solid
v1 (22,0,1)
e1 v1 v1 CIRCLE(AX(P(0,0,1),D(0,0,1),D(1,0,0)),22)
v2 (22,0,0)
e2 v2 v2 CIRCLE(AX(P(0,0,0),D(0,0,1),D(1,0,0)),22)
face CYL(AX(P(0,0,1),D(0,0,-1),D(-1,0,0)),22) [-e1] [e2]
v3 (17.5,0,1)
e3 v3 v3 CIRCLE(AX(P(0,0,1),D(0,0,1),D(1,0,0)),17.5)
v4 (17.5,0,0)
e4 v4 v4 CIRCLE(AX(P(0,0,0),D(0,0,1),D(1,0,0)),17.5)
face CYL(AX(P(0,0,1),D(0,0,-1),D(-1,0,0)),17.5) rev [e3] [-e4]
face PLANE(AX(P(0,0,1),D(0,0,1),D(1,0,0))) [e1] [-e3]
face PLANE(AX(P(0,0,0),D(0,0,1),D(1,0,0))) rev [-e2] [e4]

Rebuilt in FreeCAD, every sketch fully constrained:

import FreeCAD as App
import Part
import Sketcher

V = App.Vector
Q = App.Units.Quantity

doc = App.newDocument("Part")
body = doc.addObject("PartDesign::Body", "Body")

# Sketch on XY plane
sketch1 = body.newObject("Sketcher::SketchObject", "Sketch")
sketch1.AttachmentSupport = (doc.getObject("XY_Plane"), [""])
sketch1.MapMode = "FlatFace"
sketch1.addGeometry(Part.Circle(V(0, 0, 0), V(0, 0, 1), 22), False)
sketch1.addGeometry(Part.Circle(V(0, 0, 0), V(0, 0, 1), 18), False)
sketch1.addConstraint(Sketcher.Constraint("Coincident", 0, 3, -1, 1))
sketch1.addConstraint(Sketcher.Constraint("Coincident", 1, 3, -1, 1))
sketch1.addConstraint(Sketcher.Constraint("Diameter", 0, Q("44 mm")))
sketch1.addConstraint(Sketcher.Constraint("Diameter", 1, Q("35 mm")))
pad1 = body.newObject("PartDesign::Pad", "Pad")
pad1.Profile = sketch1
pad1.Length = 1

doc.recompute()
